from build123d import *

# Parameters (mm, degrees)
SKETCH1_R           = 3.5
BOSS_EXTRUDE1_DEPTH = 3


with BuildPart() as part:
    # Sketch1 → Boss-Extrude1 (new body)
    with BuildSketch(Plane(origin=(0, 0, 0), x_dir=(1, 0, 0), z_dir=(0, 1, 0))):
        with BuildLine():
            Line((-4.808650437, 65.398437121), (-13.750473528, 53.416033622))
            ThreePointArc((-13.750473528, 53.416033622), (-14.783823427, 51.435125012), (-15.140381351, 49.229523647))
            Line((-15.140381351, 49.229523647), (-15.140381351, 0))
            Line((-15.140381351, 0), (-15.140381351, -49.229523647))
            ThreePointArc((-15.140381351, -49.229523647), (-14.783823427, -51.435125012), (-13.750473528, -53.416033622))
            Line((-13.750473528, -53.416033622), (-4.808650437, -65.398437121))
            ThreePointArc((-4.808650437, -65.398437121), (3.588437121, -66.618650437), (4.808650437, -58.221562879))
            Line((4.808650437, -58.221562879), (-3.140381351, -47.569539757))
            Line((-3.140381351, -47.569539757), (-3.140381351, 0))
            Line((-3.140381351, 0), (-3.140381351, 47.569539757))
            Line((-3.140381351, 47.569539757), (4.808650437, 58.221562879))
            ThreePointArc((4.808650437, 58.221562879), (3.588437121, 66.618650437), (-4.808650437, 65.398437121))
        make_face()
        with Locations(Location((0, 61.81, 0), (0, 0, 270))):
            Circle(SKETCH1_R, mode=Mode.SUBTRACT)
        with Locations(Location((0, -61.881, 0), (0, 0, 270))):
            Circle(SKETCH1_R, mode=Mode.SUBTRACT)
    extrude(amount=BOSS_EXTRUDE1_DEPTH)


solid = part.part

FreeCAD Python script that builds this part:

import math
import FreeCAD as App
import Part
import Sketcher

V = App.Vector

doc = App.newDocument("Part")
body = doc.addObject("PartDesign::Body", "Body")

sketch1 = doc.addObject("Sketcher::SketchObject", "Sketch")
body.addObject(sketch1)
sketch1.AttachmentSupport = (doc.XZ_Plane, [""])
sketch1.MapMode = "FlatFace"
sketch1.addGeometry(Part.LineSegment(V(-4.80865, -65.398437, 0), V(-13.750474, -53.416034, 0)), False)
sketch1.addGeometry(Part.ArcOfCircle(Part.Circle(V(-8.140381, -49.229524, 0), V(0, 0, 1), 7), math.radians(-180), math.radians(-143.268)), False)
sketch1.addGeometry(Part.LineSegment(V(-15.140381, -49.229524, 0), V(-15.140381, 49.229524, 0)), False)
sketch1.addGeometry(Part.ArcOfCircle(Part.Circle(V(-8.140381, 49.229524, 0), V(0, 0, 1), 7), math.radians(143.268), math.radians(180)), False)
sketch1.addGeometry(Part.LineSegment(V(-13.750474, 53.416034, 0), V(-4.80865, 65.398437, 0)), False)
sketch1.addGeometry(Part.ArcOfCircle(Part.Circle(V(0, 61.81, 0), V(0, 0, 1), 6), math.radians(-36.732), math.radians(143.268)), False)
sketch1.addGeometry(Part.LineSegment(V(4.80865, 58.221563, 0), V(-3.140381, 47.56954, 0)), False)
sketch1.addGeometry(Part.LineSegment(V(-3.140381, 47.56954, 0), V(-3.140381, -47.56954, 0)), False)
sketch1.addGeometry(Part.LineSegment(V(-3.140381, -47.56954, 0), V(4.80865, -58.221563, 0)), False)
sketch1.addGeometry(Part.ArcOfCircle(Part.Circle(V(0, -61.81, 0), V(0, 0, 1), 6), math.radians(-143.268), math.radians(36.732)), False)
sketch1.addGeometry(Part.Circle(V(0, 61.881, 0), V(0, 0, 1), 3.5), False)
sketch1.addGeometry(Part.Circle(V(0, -61.81, 0), V(0, 0, 1), 3.5), False)
sketch1.addConstraint(Sketcher.Constraint("Tangent", 0, 2, 1, 2))
sketch1.addConstraint(Sketcher.Constraint("Tangent", 1, 1, 2, 1))
sketch1.addConstraint(Sketcher.Constraint("Tangent", 2, 2, 3, 2))
sketch1.addConstraint(Sketcher.Constraint("Tangent", 3, 1, 4, 1))
sketch1.addConstraint(Sketcher.Constraint("Tangent", 4, 2, 5, 2))
sketch1.addConstraint(Sketcher.Constraint("Tangent", 5, 1, 6, 1))
sketch1.addConstraint(Sketcher.Constraint("Coincident", 6, 2, 7, 1))
sketch1.addConstraint(Sketcher.Constraint("Coincident", 7, 2, 8, 1))
sketch1.addConstraint(Sketcher.Constraint("Tangent", 8, 2, 9, 2))
sketch1.addConstraint(Sketcher.Constraint("Tangent", 9, 1, 0, 1))
sketch1.addConstraint(Sketcher.Constraint("Vertical", 2))
sketch1.addConstraint(Sketcher.Constraint("Vertical", 7))
sketch1.addConstraint(Sketcher.Constraint("Coincident", 11, 3, 9, 3))
sketch1.addConstraint(Sketcher.Constraint("Equal", 1, 3))
sketch1.addConstraint(Sketcher.Constraint("Equal", 5, 9))
sketch1.addConstraint(Sketcher.Constraint("Equal", 10, 11))
sketch1.addConstraint(Sketcher.Constraint("Symmetric", 5, 3, 9, 3, -1, 1))
sketch1.addConstraint(Sketcher.Constraint("Symmetric", 0, 2, 3, 1, -1))
sketch1.addConstraint(Sketcher.Constraint("PointOnObject", 10, 3, -2))
sketch1.addConstraint(Sketcher.Constraint("Parallel", 4, 6))
sketch1.addConstraint(Sketcher.Constraint("Parallel", 0, 8))
sketch1.addConstraint(Sketcher.Constraint("Diameter", 10, 7.0))
sketch1.addConstraint(Sketcher.Constraint("Radius", 1, 7.0))
sketch1.addConstraint(Sketcher.Constraint("Radius", 5, 6.0))
sketch1.addConstraint(Sketcher.Constraint("DistanceX", 3, 3, 6, 2, 5.0))
sketch1.addConstraint(Sketcher.Constraint("DistanceY", -1, 1, 5, 3, 61.81))
sketch1.addConstraint(Sketcher.Constraint("DistanceY", -1, 1, 10, 3, 61.881))
sketch1.addConstraint(Sketcher.Constraint("DistanceY", 7, 2, 7, 1, 95.13908))
sketch1.addConstraint(Sketcher.Constraint("DistanceX", 4, 2, 5, 1, 9.617301))
pad1 = doc.addObject("PartDesign::Pad", "Pad")
body.addObject(pad1)
pad1.Profile = sketch1
pad1.Length = 3
pad1.Reversed = True

doc.recompute()
